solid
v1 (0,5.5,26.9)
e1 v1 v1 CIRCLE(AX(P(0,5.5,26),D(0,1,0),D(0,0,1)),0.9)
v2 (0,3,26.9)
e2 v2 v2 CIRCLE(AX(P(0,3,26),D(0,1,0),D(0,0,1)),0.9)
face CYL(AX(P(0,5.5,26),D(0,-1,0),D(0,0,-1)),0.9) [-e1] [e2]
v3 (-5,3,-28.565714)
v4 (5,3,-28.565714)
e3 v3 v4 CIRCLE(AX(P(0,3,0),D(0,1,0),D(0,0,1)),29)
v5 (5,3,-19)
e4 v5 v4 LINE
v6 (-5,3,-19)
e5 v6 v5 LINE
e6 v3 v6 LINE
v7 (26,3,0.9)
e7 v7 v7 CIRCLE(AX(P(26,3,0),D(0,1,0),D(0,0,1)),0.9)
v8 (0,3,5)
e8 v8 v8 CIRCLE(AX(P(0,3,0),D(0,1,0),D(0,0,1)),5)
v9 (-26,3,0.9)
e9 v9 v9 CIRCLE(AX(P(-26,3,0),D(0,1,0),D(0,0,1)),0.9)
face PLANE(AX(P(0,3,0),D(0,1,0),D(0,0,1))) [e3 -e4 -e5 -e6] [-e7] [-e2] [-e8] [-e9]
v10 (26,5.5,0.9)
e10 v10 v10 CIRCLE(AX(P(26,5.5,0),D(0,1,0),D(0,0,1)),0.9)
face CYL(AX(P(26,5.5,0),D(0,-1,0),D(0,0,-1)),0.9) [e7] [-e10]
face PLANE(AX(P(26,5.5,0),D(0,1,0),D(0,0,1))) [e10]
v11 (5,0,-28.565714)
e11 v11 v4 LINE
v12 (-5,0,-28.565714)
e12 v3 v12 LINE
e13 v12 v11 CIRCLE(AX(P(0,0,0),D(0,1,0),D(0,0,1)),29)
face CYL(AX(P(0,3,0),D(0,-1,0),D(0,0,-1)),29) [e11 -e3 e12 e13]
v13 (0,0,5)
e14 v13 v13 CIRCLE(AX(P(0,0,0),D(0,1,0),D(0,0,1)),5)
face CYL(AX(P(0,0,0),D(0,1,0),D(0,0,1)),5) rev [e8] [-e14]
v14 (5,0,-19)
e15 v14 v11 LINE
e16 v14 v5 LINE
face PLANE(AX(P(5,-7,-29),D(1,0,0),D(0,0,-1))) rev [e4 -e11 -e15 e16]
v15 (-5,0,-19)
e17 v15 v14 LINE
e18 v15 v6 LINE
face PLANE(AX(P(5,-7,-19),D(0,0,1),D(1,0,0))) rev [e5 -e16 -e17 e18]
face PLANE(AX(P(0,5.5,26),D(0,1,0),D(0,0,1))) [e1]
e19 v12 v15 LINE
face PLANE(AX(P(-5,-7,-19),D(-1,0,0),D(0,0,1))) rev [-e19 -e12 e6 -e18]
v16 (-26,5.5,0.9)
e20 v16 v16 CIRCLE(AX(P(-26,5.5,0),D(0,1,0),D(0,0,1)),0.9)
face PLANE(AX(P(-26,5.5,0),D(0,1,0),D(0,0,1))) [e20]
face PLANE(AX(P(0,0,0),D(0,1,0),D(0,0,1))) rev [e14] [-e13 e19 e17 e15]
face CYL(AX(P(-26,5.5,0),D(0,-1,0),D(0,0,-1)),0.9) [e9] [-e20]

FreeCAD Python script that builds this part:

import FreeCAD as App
import Part
import Sketcher


def add_polygon(sketch, points):
    """Adds a closed chain of lines whose ends are joined by coincident constraints."""
    first, n = sketch.GeometryCount, len(points)
    for a, b in zip(points, points[1:] + points[:1]):
        sketch.addGeometry(Part.LineSegment(App.Vector(*a, 0), App.Vector(*b, 0)), False)
    for i in range(n):
        sketch.addConstraint(Sketcher.Constraint("Coincident", first + i, 2, first + (i + 1) % n, 1))

doc = App.newDocument("Part")
body = doc.addObject("PartDesign::Body", "Body")

# Sketch on XZ plane
sketch1 = body.newObject("Sketcher::SketchObject", "Sketch")
sketch1.AttachmentSupport = (doc.getObject("XZ_Plane"), [""])
sketch1.MapMode = "FlatFace"
sketch1.addGeometry(Part.Circle(App.Vector(0, 0, 0), App.Vector(0, 0, 1), 29), False)
sketch1.addConstraint(Sketcher.Constraint("Coincident", 0, 3, -1, 1))
sketch1.addConstraint(Sketcher.Constraint("Diameter", 0, 58.0))
pad1 = body.newObject("PartDesign::Pad", "Pad")
pad1.Profile = sketch1
pad1.Length = 3
pad1.Reversed = True

# Sketch on XZ plane
sketch2 = body.newObject("Sketcher::SketchObject", "Sketch001")
sketch2.AttachmentSupport = (doc.getObject("XZ_Plane"), [""])
sketch2.MapMode = "FlatFace"
sketch2.AttachmentOffset = App.Placement(App.Vector(0, 0, -3), App.Rotation())
sketch2.addGeometry(Part.Circle(App.Vector(-26, 0, 0), App.Vector(0, 0, 1), 0.9), False)
sketch2.addGeometry(Part.Circle(App.Vector(26, 0, 0), App.Vector(0, 0, 1), 0.9), False)
sketch2.addConstraint(Sketcher.Constraint("Equal", 0, 1))
sketch2.addConstraint(Sketcher.Constraint("Symmetric", 0, 3, 1, 3, -1, 1))
sketch2.addConstraint(Sketcher.Constraint("PointOnObject", 0, 3, -1))
sketch2.addConstraint(Sketcher.Constraint("Diameter", 0, 1.8))
sketch2.addConstraint(Sketcher.Constraint("DistanceX", 0, 3, -1, 1, 26.0))
pad2 = body.newObject("PartDesign::Pad", "Pad001")
pad2.Profile = sketch2
pad2.Length = 2.5
pad2.Reversed = True

# Sketch on XZ plane
sketch3 = body.newObject("Sketcher::SketchObject", "Sketch002")
sketch3.AttachmentSupport = (doc.getObject("XZ_Plane"), [""])
sketch3.MapMode = "FlatFace"
sketch3.AttachmentOffset = App.Placement(App.Vector(0, 0, -3), App.Rotation())
sketch3.addGeometry(Part.Circle(App.Vector(0, 26, 0), App.Vector(0, 0, 1), 0.9), False)
sketch3.addConstraint(Sketcher.Constraint("PointOnObject", 0, 3, -2))
sketch3.addConstraint(Sketcher.Constraint("Diameter", 0, 1.8))
sketch3.addConstraint(Sketcher.Constraint("DistanceY", -1, 1, 0, 3, 26.0))
pad3 = body.newObject("PartDesign::Pad", "Pad002")
pad3.Profile = sketch3
pad3.Length = 2.5
pad3.Reversed = True

# Sketch on XZ plane
sketch4 = body.newObject("Sketcher::SketchObject", "Sketch003")
sketch4.AttachmentSupport = (doc.getObject("XZ_Plane"), [""])
sketch4.MapMode = "FlatFace"
sketch4.AttachmentOffset = App.Placement(App.Vector(0, 0, -3), App.Rotation())
sketch4.addGeometry(Part.Circle(App.Vector(0, 0, 0), App.Vector(0, 0, 1), 5), False)
sketch4.addConstraint(Sketcher.Constraint("Coincident", 0, 3, -1, 1))
sketch4.addConstraint(Sketcher.Constraint("Diameter", 0, 10.0))
pocket1 = body.newObject("PartDesign::Pocket", "Pocket")
pocket1.Profile = sketch4
pocket1.Length = 3
pocket1.Reversed = True

# Sketch on XZ plane
sketch5 = body.newObject("Sketcher::SketchObject", "Sketch004")
sketch5.AttachmentSupport = (doc.getObject("XZ_Plane"), [""])
sketch5.MapMode = "FlatFace"
sketch5.AttachmentOffset = App.Placement(App.Vector(0, 0, -3), App.Rotation())
add_polygon(sketch5, [(5, -29), (-5, -29), (-5, -19), (5, -19)])  # lines 0-3
sketch5.addConstraint(Sketcher.Constraint("Horizontal", 0))
sketch5.addConstraint(Sketcher.Constraint("Vertical", 1))
sketch5.addConstraint(Sketcher.Constraint("Horizontal", 2))
sketch5.addConstraint(Sketcher.Constraint("Vertical", 3))
sketch5.addConstraint(Sketcher.Constraint("Equal", 2, 1))
sketch5.addConstraint(Sketcher.Constraint("DistanceX", 0, 2, 0, 1, 10.0))
sketch5.addConstraint(Sketcher.Constraint("DistanceX", 0, 2, -1, 1, 5.0))
sketch5.addConstraint(Sketcher.Constraint("DistanceY", 0, 2, -1, 1, 29.0))
pocket2 = body.newObject("PartDesign::Pocket", "Pocket001")
pocket2.Profile = sketch5
pocket2.Length = 10
pocket2.Reversed = True

doc.recompute()
